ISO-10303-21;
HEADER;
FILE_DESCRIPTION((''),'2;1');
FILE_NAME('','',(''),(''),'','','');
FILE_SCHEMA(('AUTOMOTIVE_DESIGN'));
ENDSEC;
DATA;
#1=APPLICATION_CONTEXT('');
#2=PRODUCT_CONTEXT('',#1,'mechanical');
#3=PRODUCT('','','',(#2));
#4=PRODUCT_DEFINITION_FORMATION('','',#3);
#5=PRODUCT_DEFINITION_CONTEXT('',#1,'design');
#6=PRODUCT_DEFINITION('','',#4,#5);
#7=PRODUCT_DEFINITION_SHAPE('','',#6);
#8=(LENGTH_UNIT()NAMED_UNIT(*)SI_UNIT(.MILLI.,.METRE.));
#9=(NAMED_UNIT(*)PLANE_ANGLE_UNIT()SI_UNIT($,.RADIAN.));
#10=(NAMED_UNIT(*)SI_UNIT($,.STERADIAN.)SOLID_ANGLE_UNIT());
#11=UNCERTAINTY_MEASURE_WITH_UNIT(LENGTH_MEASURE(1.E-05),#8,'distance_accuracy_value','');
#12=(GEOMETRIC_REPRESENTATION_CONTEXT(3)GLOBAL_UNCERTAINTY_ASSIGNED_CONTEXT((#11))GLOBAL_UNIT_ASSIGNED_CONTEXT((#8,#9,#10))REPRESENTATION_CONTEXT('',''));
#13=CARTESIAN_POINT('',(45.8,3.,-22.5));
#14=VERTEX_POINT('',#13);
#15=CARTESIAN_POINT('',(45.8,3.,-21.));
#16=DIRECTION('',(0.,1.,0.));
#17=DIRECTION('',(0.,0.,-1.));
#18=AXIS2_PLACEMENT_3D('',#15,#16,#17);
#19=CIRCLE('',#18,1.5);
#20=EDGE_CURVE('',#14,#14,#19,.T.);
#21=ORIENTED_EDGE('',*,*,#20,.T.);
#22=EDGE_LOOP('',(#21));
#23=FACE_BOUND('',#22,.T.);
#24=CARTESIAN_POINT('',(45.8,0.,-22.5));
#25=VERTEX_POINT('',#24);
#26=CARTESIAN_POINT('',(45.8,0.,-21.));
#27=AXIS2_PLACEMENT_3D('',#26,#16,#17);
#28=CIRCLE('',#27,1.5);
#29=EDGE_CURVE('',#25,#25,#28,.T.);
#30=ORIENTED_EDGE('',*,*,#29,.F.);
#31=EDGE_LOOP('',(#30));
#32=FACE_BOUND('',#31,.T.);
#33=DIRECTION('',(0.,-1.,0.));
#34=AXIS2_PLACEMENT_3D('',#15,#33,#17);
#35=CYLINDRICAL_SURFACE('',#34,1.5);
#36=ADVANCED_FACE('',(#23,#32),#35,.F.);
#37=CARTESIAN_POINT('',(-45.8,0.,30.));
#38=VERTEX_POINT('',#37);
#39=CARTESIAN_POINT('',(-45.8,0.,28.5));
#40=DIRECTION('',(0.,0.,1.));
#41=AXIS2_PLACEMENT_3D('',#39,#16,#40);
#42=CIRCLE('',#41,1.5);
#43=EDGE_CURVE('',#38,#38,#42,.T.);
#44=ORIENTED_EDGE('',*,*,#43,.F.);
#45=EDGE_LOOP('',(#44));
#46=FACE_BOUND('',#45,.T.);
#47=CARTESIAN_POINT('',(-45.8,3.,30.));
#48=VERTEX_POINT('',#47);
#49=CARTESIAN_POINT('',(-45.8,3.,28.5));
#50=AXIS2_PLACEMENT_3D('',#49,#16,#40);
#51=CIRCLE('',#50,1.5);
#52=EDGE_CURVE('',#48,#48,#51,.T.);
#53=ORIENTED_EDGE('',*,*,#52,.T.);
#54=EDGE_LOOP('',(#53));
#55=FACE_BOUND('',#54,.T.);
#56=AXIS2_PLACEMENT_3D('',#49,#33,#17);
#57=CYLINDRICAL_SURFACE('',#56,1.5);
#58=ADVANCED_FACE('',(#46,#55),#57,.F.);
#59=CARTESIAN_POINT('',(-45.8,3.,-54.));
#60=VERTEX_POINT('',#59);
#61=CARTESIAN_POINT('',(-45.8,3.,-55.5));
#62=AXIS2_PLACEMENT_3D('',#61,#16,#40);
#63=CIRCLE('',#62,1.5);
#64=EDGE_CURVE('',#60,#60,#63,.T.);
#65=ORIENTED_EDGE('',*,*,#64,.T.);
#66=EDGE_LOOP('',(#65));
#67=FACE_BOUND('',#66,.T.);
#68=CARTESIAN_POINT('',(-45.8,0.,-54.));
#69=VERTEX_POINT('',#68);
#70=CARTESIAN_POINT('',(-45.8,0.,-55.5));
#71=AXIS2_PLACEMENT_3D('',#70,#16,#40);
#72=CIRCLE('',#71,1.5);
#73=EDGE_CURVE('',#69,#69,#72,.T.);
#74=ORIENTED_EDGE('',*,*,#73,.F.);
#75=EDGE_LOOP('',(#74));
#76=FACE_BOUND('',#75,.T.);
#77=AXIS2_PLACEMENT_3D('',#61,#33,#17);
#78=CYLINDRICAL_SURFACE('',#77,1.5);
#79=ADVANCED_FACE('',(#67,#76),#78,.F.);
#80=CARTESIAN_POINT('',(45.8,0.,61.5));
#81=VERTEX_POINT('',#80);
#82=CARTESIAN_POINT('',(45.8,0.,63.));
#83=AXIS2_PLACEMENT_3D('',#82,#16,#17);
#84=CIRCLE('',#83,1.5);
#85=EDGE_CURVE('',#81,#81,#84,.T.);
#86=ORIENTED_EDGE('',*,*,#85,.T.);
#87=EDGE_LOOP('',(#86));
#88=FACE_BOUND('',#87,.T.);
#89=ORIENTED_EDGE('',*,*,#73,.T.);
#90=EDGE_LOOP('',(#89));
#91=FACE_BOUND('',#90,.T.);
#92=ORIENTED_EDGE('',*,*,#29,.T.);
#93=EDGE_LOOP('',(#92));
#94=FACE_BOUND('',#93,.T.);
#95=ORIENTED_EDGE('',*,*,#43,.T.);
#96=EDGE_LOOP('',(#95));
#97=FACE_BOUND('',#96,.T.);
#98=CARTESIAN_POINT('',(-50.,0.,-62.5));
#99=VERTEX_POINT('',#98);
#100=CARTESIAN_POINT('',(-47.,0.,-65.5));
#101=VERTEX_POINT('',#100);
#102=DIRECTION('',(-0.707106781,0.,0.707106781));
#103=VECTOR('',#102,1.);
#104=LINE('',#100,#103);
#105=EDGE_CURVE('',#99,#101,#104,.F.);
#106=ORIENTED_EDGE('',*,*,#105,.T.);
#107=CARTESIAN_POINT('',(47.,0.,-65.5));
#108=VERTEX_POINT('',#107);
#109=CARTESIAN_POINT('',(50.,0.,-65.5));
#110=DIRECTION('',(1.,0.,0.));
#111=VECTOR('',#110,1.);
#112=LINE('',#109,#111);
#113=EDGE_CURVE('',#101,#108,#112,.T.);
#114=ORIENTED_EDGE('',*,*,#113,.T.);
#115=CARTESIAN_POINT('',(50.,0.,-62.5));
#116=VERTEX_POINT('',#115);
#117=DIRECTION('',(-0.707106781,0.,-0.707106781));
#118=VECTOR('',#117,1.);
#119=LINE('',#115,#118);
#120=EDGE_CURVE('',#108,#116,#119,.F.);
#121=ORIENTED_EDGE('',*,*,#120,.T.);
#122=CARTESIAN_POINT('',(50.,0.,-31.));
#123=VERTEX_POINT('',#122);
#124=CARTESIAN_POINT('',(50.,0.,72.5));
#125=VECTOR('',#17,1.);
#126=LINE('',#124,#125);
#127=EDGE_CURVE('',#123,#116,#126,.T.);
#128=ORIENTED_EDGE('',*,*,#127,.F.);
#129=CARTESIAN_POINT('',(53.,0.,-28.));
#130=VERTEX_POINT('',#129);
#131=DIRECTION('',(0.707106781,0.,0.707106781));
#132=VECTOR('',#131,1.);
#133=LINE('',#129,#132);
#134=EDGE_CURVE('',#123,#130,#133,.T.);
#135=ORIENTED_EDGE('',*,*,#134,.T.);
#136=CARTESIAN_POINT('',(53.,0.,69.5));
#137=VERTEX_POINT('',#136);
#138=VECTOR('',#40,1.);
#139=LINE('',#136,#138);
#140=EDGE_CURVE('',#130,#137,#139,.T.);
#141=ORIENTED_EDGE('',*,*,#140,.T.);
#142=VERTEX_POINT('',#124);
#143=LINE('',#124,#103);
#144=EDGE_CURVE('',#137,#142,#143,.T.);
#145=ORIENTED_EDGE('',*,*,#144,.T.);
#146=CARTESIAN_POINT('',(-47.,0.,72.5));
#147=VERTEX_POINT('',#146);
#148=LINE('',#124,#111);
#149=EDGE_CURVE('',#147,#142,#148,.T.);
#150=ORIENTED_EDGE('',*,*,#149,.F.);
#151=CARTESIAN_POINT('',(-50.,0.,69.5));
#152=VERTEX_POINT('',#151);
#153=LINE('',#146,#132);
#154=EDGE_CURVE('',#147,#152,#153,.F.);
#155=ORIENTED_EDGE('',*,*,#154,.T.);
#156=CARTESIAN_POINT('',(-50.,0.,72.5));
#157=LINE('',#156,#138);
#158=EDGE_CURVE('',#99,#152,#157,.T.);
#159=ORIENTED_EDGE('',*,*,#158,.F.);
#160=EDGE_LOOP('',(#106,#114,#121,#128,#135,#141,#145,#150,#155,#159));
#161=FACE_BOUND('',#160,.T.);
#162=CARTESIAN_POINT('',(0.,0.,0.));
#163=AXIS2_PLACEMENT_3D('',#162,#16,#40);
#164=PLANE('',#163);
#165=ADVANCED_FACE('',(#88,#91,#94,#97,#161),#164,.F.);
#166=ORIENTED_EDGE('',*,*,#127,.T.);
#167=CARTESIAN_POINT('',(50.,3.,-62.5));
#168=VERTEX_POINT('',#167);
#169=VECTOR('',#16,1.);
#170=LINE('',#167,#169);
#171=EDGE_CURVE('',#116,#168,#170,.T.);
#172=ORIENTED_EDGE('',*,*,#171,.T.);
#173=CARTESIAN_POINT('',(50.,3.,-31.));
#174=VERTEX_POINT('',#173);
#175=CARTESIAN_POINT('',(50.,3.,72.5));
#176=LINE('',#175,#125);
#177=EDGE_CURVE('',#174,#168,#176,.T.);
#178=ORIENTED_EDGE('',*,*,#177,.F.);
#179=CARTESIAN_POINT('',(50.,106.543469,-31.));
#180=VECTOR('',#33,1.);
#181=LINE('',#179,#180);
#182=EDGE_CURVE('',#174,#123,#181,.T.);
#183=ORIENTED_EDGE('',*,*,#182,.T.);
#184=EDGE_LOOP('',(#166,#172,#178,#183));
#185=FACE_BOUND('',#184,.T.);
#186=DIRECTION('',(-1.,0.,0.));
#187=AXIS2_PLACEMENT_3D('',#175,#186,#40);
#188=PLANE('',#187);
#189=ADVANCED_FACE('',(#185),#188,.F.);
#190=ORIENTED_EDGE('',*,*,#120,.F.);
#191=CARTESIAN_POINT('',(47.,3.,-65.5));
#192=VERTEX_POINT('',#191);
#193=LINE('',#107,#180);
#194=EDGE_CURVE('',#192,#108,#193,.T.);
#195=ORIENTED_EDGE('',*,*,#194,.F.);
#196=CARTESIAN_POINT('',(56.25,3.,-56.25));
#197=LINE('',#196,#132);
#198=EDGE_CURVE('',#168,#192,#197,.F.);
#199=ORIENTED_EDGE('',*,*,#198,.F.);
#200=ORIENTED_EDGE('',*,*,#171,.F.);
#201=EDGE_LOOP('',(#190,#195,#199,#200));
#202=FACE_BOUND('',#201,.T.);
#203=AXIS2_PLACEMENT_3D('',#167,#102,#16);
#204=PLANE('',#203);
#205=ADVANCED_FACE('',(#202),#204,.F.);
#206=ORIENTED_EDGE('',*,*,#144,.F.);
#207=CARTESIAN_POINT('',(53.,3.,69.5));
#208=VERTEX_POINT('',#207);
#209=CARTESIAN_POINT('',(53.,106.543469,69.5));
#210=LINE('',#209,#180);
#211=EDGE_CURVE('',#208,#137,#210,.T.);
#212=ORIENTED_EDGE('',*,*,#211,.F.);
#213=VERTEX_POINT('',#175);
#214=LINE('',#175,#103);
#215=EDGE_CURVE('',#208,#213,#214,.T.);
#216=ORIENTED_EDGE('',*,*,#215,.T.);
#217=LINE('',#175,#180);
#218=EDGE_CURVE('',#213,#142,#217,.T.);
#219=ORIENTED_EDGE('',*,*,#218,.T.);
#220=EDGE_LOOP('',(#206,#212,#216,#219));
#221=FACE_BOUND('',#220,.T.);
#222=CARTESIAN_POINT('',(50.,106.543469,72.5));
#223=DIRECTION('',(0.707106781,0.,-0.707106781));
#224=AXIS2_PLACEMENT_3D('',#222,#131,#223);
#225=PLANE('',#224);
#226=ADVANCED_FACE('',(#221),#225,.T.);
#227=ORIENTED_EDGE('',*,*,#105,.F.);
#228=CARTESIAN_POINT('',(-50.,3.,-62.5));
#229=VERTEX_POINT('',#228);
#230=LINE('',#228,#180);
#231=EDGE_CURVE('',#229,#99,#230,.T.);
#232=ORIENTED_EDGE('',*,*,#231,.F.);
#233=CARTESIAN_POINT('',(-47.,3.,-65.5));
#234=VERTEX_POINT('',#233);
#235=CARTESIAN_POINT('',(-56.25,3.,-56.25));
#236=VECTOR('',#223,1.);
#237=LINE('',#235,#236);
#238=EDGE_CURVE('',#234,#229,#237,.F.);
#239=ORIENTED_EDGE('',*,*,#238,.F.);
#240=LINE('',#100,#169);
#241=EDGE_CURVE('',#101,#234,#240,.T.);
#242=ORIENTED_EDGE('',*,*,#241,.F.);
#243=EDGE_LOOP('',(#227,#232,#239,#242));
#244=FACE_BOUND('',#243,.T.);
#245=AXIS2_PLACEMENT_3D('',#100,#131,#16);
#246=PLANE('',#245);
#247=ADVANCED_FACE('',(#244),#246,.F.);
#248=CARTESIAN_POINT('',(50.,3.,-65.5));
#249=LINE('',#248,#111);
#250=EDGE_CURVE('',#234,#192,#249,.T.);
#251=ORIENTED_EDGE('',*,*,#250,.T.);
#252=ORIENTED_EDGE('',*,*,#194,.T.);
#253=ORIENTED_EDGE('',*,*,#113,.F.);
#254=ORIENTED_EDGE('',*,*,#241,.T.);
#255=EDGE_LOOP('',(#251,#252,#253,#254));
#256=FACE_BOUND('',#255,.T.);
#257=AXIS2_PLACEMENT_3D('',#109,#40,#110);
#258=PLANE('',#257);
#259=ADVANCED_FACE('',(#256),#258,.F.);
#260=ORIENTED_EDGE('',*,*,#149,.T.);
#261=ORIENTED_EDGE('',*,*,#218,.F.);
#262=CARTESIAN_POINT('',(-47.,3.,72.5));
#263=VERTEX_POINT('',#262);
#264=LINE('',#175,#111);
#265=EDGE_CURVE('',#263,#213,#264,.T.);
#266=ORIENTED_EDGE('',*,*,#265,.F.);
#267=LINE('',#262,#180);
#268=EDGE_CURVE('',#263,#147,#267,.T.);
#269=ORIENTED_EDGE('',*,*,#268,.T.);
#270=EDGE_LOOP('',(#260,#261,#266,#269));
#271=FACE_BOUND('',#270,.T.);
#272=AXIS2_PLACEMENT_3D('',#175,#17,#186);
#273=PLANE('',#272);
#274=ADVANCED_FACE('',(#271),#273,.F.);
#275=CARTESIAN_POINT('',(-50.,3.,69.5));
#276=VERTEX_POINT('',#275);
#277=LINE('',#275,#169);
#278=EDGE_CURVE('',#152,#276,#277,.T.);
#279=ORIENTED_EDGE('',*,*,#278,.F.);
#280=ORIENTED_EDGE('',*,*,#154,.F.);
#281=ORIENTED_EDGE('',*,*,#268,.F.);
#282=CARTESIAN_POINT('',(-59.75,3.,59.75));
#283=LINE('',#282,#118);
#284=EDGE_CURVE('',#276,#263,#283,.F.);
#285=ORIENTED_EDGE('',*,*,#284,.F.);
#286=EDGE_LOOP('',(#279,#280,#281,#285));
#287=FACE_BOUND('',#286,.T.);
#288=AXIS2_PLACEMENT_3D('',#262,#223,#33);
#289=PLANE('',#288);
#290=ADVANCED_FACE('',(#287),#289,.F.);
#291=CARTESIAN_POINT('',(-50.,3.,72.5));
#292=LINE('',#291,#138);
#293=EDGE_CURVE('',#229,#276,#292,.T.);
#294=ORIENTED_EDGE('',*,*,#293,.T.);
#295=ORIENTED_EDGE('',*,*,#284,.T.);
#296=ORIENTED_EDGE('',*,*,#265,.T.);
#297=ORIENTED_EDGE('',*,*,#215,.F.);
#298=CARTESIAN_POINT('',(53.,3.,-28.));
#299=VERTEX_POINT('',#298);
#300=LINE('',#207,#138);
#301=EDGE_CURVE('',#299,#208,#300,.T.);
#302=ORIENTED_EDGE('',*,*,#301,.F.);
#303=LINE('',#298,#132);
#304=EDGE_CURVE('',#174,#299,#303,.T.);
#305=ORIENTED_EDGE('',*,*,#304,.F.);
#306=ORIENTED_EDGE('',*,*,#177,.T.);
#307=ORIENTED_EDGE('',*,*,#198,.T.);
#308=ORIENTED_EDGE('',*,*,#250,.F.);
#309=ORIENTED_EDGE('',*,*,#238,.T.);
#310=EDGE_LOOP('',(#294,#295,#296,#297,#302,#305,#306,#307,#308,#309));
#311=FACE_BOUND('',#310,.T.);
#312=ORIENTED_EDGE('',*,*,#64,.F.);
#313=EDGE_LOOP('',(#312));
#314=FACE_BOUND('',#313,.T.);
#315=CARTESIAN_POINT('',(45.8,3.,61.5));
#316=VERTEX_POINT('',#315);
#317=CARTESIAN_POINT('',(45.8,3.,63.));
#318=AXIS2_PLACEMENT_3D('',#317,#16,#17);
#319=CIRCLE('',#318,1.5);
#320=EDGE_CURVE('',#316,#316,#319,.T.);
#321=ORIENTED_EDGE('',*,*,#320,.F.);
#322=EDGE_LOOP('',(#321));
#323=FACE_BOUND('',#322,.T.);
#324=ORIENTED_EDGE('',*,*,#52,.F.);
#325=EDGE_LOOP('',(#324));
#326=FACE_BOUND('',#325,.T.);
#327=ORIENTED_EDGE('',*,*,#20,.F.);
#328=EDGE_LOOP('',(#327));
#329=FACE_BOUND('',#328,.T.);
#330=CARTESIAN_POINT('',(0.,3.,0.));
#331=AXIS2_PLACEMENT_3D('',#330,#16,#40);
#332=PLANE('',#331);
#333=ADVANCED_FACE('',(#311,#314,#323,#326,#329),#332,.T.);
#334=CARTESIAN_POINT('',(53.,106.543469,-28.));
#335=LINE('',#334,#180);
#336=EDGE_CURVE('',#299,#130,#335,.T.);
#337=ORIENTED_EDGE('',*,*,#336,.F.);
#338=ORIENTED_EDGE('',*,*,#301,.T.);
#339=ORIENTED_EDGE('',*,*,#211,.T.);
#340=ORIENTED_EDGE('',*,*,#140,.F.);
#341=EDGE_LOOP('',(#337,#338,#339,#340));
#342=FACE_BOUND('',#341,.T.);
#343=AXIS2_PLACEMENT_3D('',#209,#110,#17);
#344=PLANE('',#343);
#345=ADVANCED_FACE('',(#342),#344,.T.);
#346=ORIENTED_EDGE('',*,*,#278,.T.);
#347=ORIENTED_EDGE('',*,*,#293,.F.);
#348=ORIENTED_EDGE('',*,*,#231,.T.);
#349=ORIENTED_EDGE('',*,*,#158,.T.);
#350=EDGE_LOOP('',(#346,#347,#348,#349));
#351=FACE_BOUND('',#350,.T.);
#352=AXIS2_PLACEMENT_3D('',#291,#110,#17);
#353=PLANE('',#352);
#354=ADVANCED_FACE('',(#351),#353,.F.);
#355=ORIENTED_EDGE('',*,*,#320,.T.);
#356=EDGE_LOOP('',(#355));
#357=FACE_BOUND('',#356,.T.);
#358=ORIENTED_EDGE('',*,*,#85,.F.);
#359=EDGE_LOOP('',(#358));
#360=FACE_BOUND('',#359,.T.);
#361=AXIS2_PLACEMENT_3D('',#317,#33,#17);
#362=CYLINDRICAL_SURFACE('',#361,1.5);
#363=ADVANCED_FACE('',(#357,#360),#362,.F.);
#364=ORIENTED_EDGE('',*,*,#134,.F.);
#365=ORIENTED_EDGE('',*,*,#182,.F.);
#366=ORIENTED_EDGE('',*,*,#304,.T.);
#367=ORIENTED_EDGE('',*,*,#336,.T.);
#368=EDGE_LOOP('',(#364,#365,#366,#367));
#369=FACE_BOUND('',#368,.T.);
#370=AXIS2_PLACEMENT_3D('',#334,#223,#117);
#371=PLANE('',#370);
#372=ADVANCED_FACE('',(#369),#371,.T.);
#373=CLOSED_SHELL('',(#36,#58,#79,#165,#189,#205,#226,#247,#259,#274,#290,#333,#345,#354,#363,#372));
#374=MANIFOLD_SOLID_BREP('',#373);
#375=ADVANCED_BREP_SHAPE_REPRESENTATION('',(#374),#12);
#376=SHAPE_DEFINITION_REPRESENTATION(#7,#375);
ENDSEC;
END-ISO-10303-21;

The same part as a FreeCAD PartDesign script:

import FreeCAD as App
import Part
import Sketcher


def edges_at(feature, points):
    """Names of the edges that pass closest to the given points."""
    edges = feature.Shape.Edges
    near = lambda p: min(range(len(edges)), key=lambda i: edges[i].distToShape(Part.Vertex(*p))[0])
    return sorted({f"Edge{near(p) + 1}" for p in points})

doc = App.newDocument("Part")
body = doc.addObject("PartDesign::Body", "Body")

# Sketch on XZ plane
sketch1 = body.newObject("Sketcher::SketchObject", "Sketch")
sketch1.AttachmentSupport = (doc.getObject("XZ_Plane"), [""])
sketch1.MapMode = "FlatFace"
sketch1.addGeometry([
    Part.LineSegment(App.Vector(-50, -72.5, 0), App.Vector(-50, 72.5, 0)),  # 0
    Part.LineSegment(App.Vector(-50, 72.5, 0), App.Vector(50, 72.5, 0)),  # 1
    Part.LineSegment(App.Vector(50, 72.5, 0), App.Vector(50, -72.5, 0)),  # 2
    Part.LineSegment(App.Vector(50, -72.5, 0), App.Vector(-50, -72.5, 0)),  # 3
    Part.Circle(App.Vector(-45.8, 28.5, 0), App.Vector(0, 0, 1), 1.5),  # 4
    Part.Circle(App.Vector(45.8, 63, 0), App.Vector(0, 0, 1), 1.5),  # 5
    Part.Circle(App.Vector(-45.8, -55.5, 0), App.Vector(0, 0, 1), 1.5),  # 6
    Part.Circle(App.Vector(45.8, -21, 0), App.Vector(0, 0, 1), 1.5),  # 7
], False)
sketch1.addConstraint([
    Sketcher.Constraint("Coincident", 0, 2, 1, 1),
    Sketcher.Constraint("Coincident", 1, 2, 2, 1),
    Sketcher.Constraint("Coincident", 2, 2, 3, 1),
    Sketcher.Constraint("Coincident", 3, 2, 0, 1),
    Sketcher.Constraint("Vertical", 0),
    Sketcher.Constraint("Horizontal", 1),
    Sketcher.Constraint("Vertical", 2),
    Sketcher.Constraint("Horizontal", 3),
    Sketcher.Constraint("Equal", 4, 5),
    Sketcher.Constraint("Equal", 5, 6),
    Sketcher.Constraint("Equal", 6, 7),
    Sketcher.Constraint("Symmetric", 0, 2, 2, 2, -1, 1),
    Sketcher.Constraint("Vertical", 4, 3, 6, 3),
    Sketcher.Constraint("Vertical", 5, 3, 7, 3),
    Sketcher.Constraint("Diameter", 4, 3.0),
    Sketcher.Constraint("DistanceX", 1, 1, 1, 2, 100.0),
    Sketcher.Constraint("DistanceY", 0, 1, 0, 2, 145.0),
    Sketcher.Constraint("DistanceY", -1, 1, 5, 3, 63.0),
    Sketcher.Constraint("DistanceY", 7, 3, -1, 1, 21.0),
    Sketcher.Constraint("DistanceY", 6, 3, 4, 3, 84.0),
    Sketcher.Constraint("DistanceY", 4, 3, 0, 2, 44.0),
    Sketcher.Constraint("DistanceX", 4, 3, -1, 1, 45.8),
    Sketcher.Constraint("DistanceX", -1, 1, 5, 3, 45.8),
])
pad1 = body.newObject("PartDesign::Pad", "Pad")
pad1.Profile = sketch1
pad1.Length = 3
pad1.Reversed = True

# Sketch on XZ plane
sketch2 = body.newObject("Sketcher::SketchObject", "Sketch001")
sketch2.AttachmentSupport = (doc.getObject("XZ_Plane"), [""])
sketch2.MapMode = "FlatFace"
sketch2.AttachmentOffset = App.Placement(App.Vector(0, 0, -3), App.Rotation())
sketch2.addGeometry([
    Part.LineSegment(App.Vector(-50, -72, 0), App.Vector(-50, -66, 0)),
    Part.LineSegment(App.Vector(-50, -66, 0), App.Vector(50, -66, 0)),
    Part.LineSegment(App.Vector(50, -66, 0), App.Vector(50, -72, 0)),
    Part.LineSegment(App.Vector(50, -72, 0), App.Vector(-50, -72, 0)),
], False)
sketch2.addConstraint([
    Sketcher.Constraint("Coincident", 0, 2, 1, 1),
    Sketcher.Constraint("Coincident", 1, 2, 2, 1),
    Sketcher.Constraint("Coincident", 2, 2, 3, 1),
    Sketcher.Constraint("Coincident", 3, 2, 0, 1),
    Sketcher.Constraint("Vertical", 0),
    Sketcher.Constraint("Horizontal", 1),
    Sketcher.Constraint("Vertical", 2),
    Sketcher.Constraint("Horizontal", 3),
    Sketcher.Constraint("DistanceX", 1, 1, 1, 2, 100.0),
    Sketcher.Constraint("DistanceY", 0, 1, 0, 2, 7.0),
    Sketcher.Constraint("DistanceX", 0, 2, -1, 1, 50.0),
    Sketcher.Constraint("DistanceY", 0, 2, -1, 1, 65.5),
])
pocket1 = body.newObject("PartDesign::Pocket", "Pocket")
pocket1.Profile = sketch2
pocket1.Type = "ThroughAll"
pocket1.Reversed = True

# Sketch on XZ plane
sketch3 = body.newObject("Sketcher::SketchObject", "Sketch002")
sketch3.AttachmentSupport = (doc.getObject("XZ_Plane"), [""])
sketch3.MapMode = "FlatFace"
sketch3.addGeometry([
    Part.LineSegment(App.Vector(53, 69.5, 0), App.Vector(50, 72.5, 0)),
    Part.LineSegment(App.Vector(50, 72.5, 0), App.Vector(50, -31, 0)),
    Part.LineSegment(App.Vector(50, -31, 0), App.Vector(53, -28, 0)),
    Part.LineSegment(App.Vector(53, -28, 0), App.Vector(53, 69.5, 0)),
], False)
sketch3.addConstraint([
    Sketcher.Constraint("Coincident", 0, 2, 1, 1),
    Sketcher.Constraint("Coincident", 1, 2, 2, 1),
    Sketcher.Constraint("Coincident", 2, 2, 3, 1),
    Sketcher.Constraint("Coincident", 3, 2, 0, 1),
    Sketcher.Constraint("Vertical", 1),
    Sketcher.Constraint("Vertical", 3),
    Sketcher.Constraint("Perpendicular", 0, 2),
    Sketcher.Constraint("Equal", 0, 2),
    Sketcher.Constraint("DistanceY", 1, 2, 1, 1, 103.5),
    Sketcher.Constraint("DistanceY", 3, 1, 3, 2, 97.5),
    Sketcher.Constraint("DistanceX", -1, 1, 0, 2, 50.0),
    Sketcher.Constraint("DistanceY", 1, 2, -1, 1, 31.0),
])
pad2 = body.newObject("PartDesign::Pad", "Pad001")
pad2.Profile = sketch3
pad2.Length = 3
pad2.Reversed = True
doc.recompute()

chamfer = body.newObject("PartDesign::Chamfer", "Chamfer")
chamfer.Base = (pad2, edges_at(pad2, [(-50, 1.5, -65.5), (50, 1.5, -65.5)]))
chamfer.Size = 3
doc.recompute()

chamfer2 = body.newObject("PartDesign::Chamfer", "Chamfer001")
chamfer2.Base = (chamfer, edges_at(chamfer, [(-50, 1.5, 72.5)]))
chamfer2.Size = 3

doc.recompute()
